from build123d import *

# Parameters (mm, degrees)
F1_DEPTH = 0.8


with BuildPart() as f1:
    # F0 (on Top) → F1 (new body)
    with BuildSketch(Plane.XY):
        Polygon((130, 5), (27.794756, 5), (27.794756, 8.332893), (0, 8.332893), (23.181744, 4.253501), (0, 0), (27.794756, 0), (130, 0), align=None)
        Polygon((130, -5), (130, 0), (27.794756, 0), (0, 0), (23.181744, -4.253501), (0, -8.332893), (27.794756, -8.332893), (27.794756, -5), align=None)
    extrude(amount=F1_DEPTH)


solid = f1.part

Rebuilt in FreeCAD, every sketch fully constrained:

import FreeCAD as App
import Part
import Sketcher
Q = App.Units.Quantity

doc = App.newDocument("Part")
body = doc.addObject("PartDesign::Body", "Body")

sketch1 = doc.addObject("Sketcher::SketchObject", "Sketch")
body.addObject(sketch1)
sketch1.AttachmentSupport = (doc.XY_Plane, [""])
sketch1.MapMode = "FlatFace"
sketch1.addGeometry([
    Part.LineSegment(App.Vector(130, 5, 0), App.Vector(27.8, 5, 0)),
    Part.LineSegment(App.Vector(27.8, 5, 0), App.Vector(27.8, 8.3, 0)),
    Part.LineSegment(App.Vector(27.8, 8.3, 0), App.Vector(0, 8.3, 0)),
    Part.LineSegment(App.Vector(0, 8.3, 0), App.Vector(23.2, 4.3, 0)),
    Part.LineSegment(App.Vector(23.2, 4.3, 0), App.Vector(0, 0, 0)),
    Part.LineSegment(App.Vector(0, 0, 0), App.Vector(23.2, -4.3, 0)),
    Part.LineSegment(App.Vector(23.2, -4.3, 0), App.Vector(0, -8.3, 0)),
    Part.LineSegment(App.Vector(0, -8.3, 0), App.Vector(27.8, -8.3, 0)),
    Part.LineSegment(App.Vector(27.8, -8.3, 0), App.Vector(27.8, -5, 0)),
    Part.LineSegment(App.Vector(27.8, -5, 0), App.Vector(130, -5, 0)),
    Part.LineSegment(App.Vector(130, -5, 0), App.Vector(130, 5, 0)),
], False)
sketch1.addConstraint([
    Sketcher.Constraint("Coincident", 0, 2, 1, 1),
    Sketcher.Constraint("Coincident", 1, 2, 2, 1),
    Sketcher.Constraint("Coincident", 2, 2, 3, 1),
    Sketcher.Constraint("Coincident", 3, 2, 4, 1),
    Sketcher.Constraint("Coincident", 4, 2, 5, 1),
    Sketcher.Constraint("Coincident", 5, 2, 6, 1),
    Sketcher.Constraint("Coincident", 6, 2, 7, 1),
    Sketcher.Constraint("Coincident", 7, 2, 8, 1),
    Sketcher.Constraint("Coincident", 8, 2, 9, 1),
    Sketcher.Constraint("Coincident", 9, 2, 10, 1),
    Sketcher.Constraint("Coincident", 10, 2, 0, 1),
    Sketcher.Constraint("Horizontal", 0),
    Sketcher.Constraint("Vertical", 1),
    Sketcher.Constraint("Horizontal", 2),
    Sketcher.Constraint("Horizontal", 7),
    Sketcher.Constraint("Vertical", 8),
    Sketcher.Constraint("Horizontal", 9),
    Sketcher.Constraint("Vertical", 10),
    Sketcher.Constraint("Coincident", 4, 2, -1, 1),
    Sketcher.Constraint("Symmetric", 2, 2, 6, 2, -1, 1),
    Sketcher.Constraint("Symmetric", 3, 2, 5, 2, -1),
    Sketcher.Constraint("Symmetric", 0, 2, 8, 2, -1),
    Sketcher.Constraint("PointOnObject", 2, 2, -2),
    Sketcher.Constraint("DistanceY", 10, 1, 10, 2, Q("10 mm")),
    Sketcher.Constraint("DistanceX", -1, 1, 9, 2, Q("130 mm")),
    Sketcher.Constraint("DistanceY", -1, 1, 3, 2, Q("4.253501 mm")),
    Sketcher.Constraint("Distance", 3, Q("23.537942 mm")),
    Sketcher.Constraint("Distance", 4, Q("23.56874 mm")),
    Sketcher.Constraint("DistanceX", 0, 2, 0, 1, Q("102.205244 mm")),
])
pad1 = doc.addObject("PartDesign::Pad", "Pad")
body.addObject(pad1)
pad1.Profile = sketch1
pad1.Length = 0.8

doc.recompute()
